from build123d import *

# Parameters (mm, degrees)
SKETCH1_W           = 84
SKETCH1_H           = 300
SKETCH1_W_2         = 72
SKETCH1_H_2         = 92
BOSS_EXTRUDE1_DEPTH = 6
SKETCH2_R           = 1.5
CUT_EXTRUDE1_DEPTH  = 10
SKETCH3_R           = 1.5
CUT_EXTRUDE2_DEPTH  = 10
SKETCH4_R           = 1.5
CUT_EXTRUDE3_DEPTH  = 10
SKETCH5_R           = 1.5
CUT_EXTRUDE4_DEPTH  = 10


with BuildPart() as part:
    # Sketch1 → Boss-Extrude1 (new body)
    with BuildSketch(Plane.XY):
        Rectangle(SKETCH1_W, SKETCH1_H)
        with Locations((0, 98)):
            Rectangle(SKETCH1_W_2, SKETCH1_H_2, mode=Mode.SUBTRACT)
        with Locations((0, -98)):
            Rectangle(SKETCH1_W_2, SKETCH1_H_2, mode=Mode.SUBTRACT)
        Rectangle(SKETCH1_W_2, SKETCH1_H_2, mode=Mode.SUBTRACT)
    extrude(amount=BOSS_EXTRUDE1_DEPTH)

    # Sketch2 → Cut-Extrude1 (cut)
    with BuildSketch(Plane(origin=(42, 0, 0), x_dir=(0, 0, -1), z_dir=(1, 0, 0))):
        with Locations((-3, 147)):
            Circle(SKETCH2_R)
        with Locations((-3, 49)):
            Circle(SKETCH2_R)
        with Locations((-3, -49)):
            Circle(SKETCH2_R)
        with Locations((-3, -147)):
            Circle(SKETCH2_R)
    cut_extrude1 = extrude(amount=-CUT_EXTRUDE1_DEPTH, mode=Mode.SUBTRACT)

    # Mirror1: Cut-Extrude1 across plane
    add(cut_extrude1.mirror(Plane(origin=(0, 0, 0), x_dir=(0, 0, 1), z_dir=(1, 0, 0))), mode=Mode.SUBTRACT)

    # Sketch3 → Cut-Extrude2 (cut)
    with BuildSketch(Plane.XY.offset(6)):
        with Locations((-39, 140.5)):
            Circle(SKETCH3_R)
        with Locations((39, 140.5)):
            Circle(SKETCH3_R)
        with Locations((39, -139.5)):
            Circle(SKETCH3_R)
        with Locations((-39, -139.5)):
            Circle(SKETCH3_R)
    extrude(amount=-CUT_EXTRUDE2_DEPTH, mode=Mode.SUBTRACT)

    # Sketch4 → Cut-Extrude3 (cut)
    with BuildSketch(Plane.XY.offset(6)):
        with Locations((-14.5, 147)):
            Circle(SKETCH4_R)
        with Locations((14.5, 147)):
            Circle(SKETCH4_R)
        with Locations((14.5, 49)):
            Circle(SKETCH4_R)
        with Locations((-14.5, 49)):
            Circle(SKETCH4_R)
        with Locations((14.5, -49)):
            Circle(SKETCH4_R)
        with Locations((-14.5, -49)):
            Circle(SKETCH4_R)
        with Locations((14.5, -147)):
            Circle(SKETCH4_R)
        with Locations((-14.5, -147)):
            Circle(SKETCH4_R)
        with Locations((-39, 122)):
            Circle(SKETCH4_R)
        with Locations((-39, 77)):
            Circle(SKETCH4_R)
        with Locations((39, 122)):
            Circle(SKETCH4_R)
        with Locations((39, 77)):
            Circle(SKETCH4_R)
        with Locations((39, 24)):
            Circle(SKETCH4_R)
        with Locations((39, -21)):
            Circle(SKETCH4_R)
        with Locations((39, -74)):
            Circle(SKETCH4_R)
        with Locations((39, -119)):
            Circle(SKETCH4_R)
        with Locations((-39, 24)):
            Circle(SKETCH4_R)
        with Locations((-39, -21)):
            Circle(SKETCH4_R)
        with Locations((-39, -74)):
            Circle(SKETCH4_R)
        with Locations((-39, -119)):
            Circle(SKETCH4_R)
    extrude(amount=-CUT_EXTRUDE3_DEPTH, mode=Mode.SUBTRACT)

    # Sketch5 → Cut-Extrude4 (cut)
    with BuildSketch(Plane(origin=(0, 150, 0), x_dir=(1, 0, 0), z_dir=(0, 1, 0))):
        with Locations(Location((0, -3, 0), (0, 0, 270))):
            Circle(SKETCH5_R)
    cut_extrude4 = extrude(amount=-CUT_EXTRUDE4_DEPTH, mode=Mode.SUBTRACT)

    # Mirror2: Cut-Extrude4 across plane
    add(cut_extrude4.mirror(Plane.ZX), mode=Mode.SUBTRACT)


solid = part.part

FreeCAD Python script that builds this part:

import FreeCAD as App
import Part
import Sketcher

V = App.Vector

doc = App.newDocument("Part")
body = doc.addObject("PartDesign::Body", "Body")

# Sketch on XY plane
sketch1 = doc.addObject("Sketcher::SketchObject", "Sketch")
body.addObject(sketch1)
sketch1.AttachmentSupport = (doc.XY_Plane, [""])
sketch1.MapMode = "FlatFace"
sketch1.addGeometry(Part.LineSegment(V(-42, 150, 0), V(-42, -150, 0)), False)
sketch1.addGeometry(Part.LineSegment(V(-42, -150, 0), V(42, -150, 0)), False)
sketch1.addGeometry(Part.LineSegment(V(42, -150, 0), V(42, 150, 0)), False)
sketch1.addGeometry(Part.LineSegment(V(42, 150, 0), V(-42, 150, 0)), False)
sketch1.addGeometry(Part.LineSegment(V(36, -144, 0), V(-36, -144, 0)), False)
sketch1.addGeometry(Part.LineSegment(V(-36, -144, 0), V(-36, -52, 0)), False)
sketch1.addGeometry(Part.LineSegment(V(-36, -52, 0), V(36, -52, 0)), False)
sketch1.addGeometry(Part.LineSegment(V(36, -52, 0), V(36, -144, 0)), False)
sketch1.addGeometry(Part.LineSegment(V(36, -46, 0), V(-36, -46, 0)), False)
sketch1.addGeometry(Part.LineSegment(V(-36, -46, 0), V(-36, 46, 0)), False)
sketch1.addGeometry(Part.LineSegment(V(-36, 46, 0), V(36, 46, 0)), False)
sketch1.addGeometry(Part.LineSegment(V(36, 46, 0), V(36, -46, 0)), False)
sketch1.addGeometry(Part.LineSegment(V(36, 52, 0), V(-36, 52, 0)), False)
sketch1.addGeometry(Part.LineSegment(V(-36, 52, 0), V(-36, 144, 0)), False)
sketch1.addGeometry(Part.LineSegment(V(-36, 144, 0), V(36, 144, 0)), False)
sketch1.addGeometry(Part.LineSegment(V(36, 144, 0), V(36, 52, 0)), False)
sketch1.addConstraint(Sketcher.Constraint("Coincident", 0, 2, 1, 1))
sketch1.addConstraint(Sketcher.Constraint("Coincident", 1, 2, 2, 1))
sketch1.addConstraint(Sketcher.Constraint("Coincident", 2, 2, 3, 1))
sketch1.addConstraint(Sketcher.Constraint("Coincident", 3, 2, 0, 1))
sketch1.addConstraint(Sketcher.Constraint("Coincident", 4, 2, 5, 1))
sketch1.addConstraint(Sketcher.Constraint("Coincident", 5, 2, 6, 1))
sketch1.addConstraint(Sketcher.Constraint("Coincident", 6, 2, 7, 1))
sketch1.addConstraint(Sketcher.Constraint("Coincident", 7, 2, 4, 1))
sketch1.addConstraint(Sketcher.Constraint("Coincident", 8, 2, 9, 1))
sketch1.addConstraint(Sketcher.Constraint("Coincident", 9, 2, 10, 1))
sketch1.addConstraint(Sketcher.Constraint("Coincident", 10, 2, 11, 1))
sketch1.addConstraint(Sketcher.Constraint("Coincident", 11, 2, 8, 1))
sketch1.addConstraint(Sketcher.Constraint("Coincident", 12, 2, 13, 1))
sketch1.addConstraint(Sketcher.Constraint("Coincident", 13, 2, 14, 1))
sketch1.addConstraint(Sketcher.Constraint("Coincident", 14, 2, 15, 1))
sketch1.addConstraint(Sketcher.Constraint("Coincident", 15, 2, 12, 1))
sketch1.addConstraint(Sketcher.Constraint("Vertical", 0))
sketch1.addConstraint(Sketcher.Constraint("Horizontal", 1))
sketch1.addConstraint(Sketcher.Constraint("Vertical", 2))
sketch1.addConstraint(Sketcher.Constraint("Horizontal", 3))
sketch1.addConstraint(Sketcher.Constraint("Horizontal", 4))
sketch1.addConstraint(Sketcher.Constraint("Vertical", 5))
sketch1.addConstraint(Sketcher.Constraint("Horizontal", 6))
sketch1.addConstraint(Sketcher.Constraint("Vertical", 7))
sketch1.addConstraint(Sketcher.Constraint("Horizontal", 8))
sketch1.addConstraint(Sketcher.Constraint("Vertical", 9))
sketch1.addConstraint(Sketcher.Constraint("Horizontal", 10))
sketch1.addConstraint(Sketcher.Constraint("Vertical", 11))
sketch1.addConstraint(Sketcher.Constraint("Horizontal", 12))
sketch1.addConstraint(Sketcher.Constraint("Vertical", 13))
sketch1.addConstraint(Sketcher.Constraint("Horizontal", 14))
sketch1.addConstraint(Sketcher.Constraint("Vertical", 15))
sketch1.addConstraint(Sketcher.Constraint("Symmetric", 0, 2, 2, 2, -1, 1))
sketch1.addConstraint(Sketcher.Constraint("Symmetric", 8, 2, 10, 2, -1, 1))
sketch1.addConstraint(Sketcher.Constraint("Symmetric", 6, 2, 12, 2, -1, 1))
sketch1.addConstraint(Sketcher.Constraint("Symmetric", 4, 2, 14, 2, -1, 1))
sketch1.addConstraint(Sketcher.Constraint("Vertical", 5, 2, 8, 2))
sketch1.addConstraint(Sketcher.Constraint("Vertical", 7, 2, 10, 2))
sketch1.addConstraint(Sketcher.Constraint("Equal", 7, 9))
sketch1.addConstraint(Sketcher.Constraint("DistanceX", 1, 1, 1, 2, 84.0))
sketch1.addConstraint(Sketcher.Constraint("DistanceX", 4, 2, 4, 1, 72.0))
sketch1.addConstraint(Sketcher.Constraint("DistanceY", 0, 2, 0, 1, 300.0))
sketch1.addConstraint(Sketcher.Constraint("DistanceY", 5, 1, 5, 2, 92.0))
sketch1.addConstraint(Sketcher.Constraint("DistanceY", 4, 2, -1, 1, 144.0))
pad1 = doc.addObject("PartDesign::Pad", "Pad")
body.addObject(pad1)
pad1.Profile = sketch1
pad1.Length = 6

# Sketch on YZ plane
sketch2 = doc.addObject("Sketcher::SketchObject", "Sketch001")
body.addObject(sketch2)
sketch2.AttachmentSupport = (doc.YZ_Plane, [""])
sketch2.MapMode = "FlatFace"
sketch2.AttachmentOffset = App.Placement(V(0, 0, 42), App.Rotation())
sketch2.addGeometry(Part.Circle(V(147, 3, 0), V(0, 0, 1), 1.5), False)
sketch2.addGeometry(Part.Circle(V(49, 3, 0), V(0, 0, 1), 1.5), False)
sketch2.addGeometry(Part.Circle(V(-49, 3, 0), V(0, 0, 1), 1.5), False)
sketch2.addGeometry(Part.Circle(V(-147, 3, 0), V(0, 0, 1), 1.5), False)
sketch2.addConstraint(Sketcher.Constraint("Equal", 0, 1))
sketch2.addConstraint(Sketcher.Constraint("Equal", 1, 2))
sketch2.addConstraint(Sketcher.Constraint("Equal", 2, 3))
sketch2.addConstraint(Sketcher.Constraint("Symmetric", 1, 3, 2, 3, -2))
sketch2.addConstraint(Sketcher.Constraint("Symmetric", 0, 3, 3, 3, -2))
sketch2.addConstraint(Sketcher.Constraint("Horizontal", 0, 3, 1, 3))
sketch2.addConstraint(Sketcher.Constraint("Diameter", 0, 3.0))
sketch2.addConstraint(Sketcher.Constraint("DistanceX", -1, 1, 0, 3, 147.0))
sketch2.addConstraint(Sketcher.Constraint("DistanceY", -1, 1, 0, 3, 3.0))
sketch2.addConstraint(Sketcher.Constraint("DistanceX", -1, 1, 1, 3, 49.0))
pocket1 = doc.addObject("PartDesign::Pocket", "Pocket")
body.addObject(pocket1)
pocket1.Profile = sketch2
pocket1.Length = 10
doc.recompute()

mirrored = doc.addObject("PartDesign::Mirrored", "Mirrored")
body.addObject(mirrored)
mirrored.Originals = [pocket1]
mirrored.MirrorPlane = (doc.YZ_Plane, [""])
body.Tip = mirrored

# Sketch on XY plane
sketch3 = doc.addObject("Sketcher::SketchObject", "Sketch002")
body.addObject(sketch3)
sketch3.AttachmentSupport = (doc.XY_Plane, [""])
sketch3.MapMode = "FlatFace"
sketch3.AttachmentOffset = App.Placement(V(0, 0, 6), App.Rotation())
sketch3.addGeometry(Part.Circle(V(-39, 140.5, 0), V(0, 0, 1), 1.5), False)
sketch3.addGeometry(Part.Circle(V(39, 140.5, 0), V(0, 0, 1), 1.5), False)
sketch3.addGeometry(Part.Circle(V(39, -139.5, 0), V(0, 0, 1), 1.5), False)
sketch3.addGeometry(Part.Circle(V(-39, -139.5, 0), V(0, 0, 1), 1.5), False)
sketch3.addConstraint(Sketcher.Constraint("Equal", 0, 1))
sketch3.addConstraint(Sketcher.Constraint("Equal", 1, 2))
sketch3.addConstraint(Sketcher.Constraint("Equal", 2, 3))
sketch3.addConstraint(Sketcher.Constraint("Symmetric", 0, 3, 1, 3, -2))
sketch3.addConstraint(Sketcher.Constraint("Symmetric", 2, 3, 3, 3, -2))
sketch3.addConstraint(Sketcher.Constraint("Vertical", 1, 3, 2, 3))
sketch3.addConstraint(Sketcher.Constraint("Diameter", 0, 3.0))
sketch3.addConstraint(Sketcher.Constraint("DistanceX", 0, 3, -1, 1, 39.0))
sketch3.addConstraint(Sketcher.Constraint("DistanceY", 2, 3, 1, 3, 280.0))
sketch3.addConstraint(Sketcher.Constraint("DistanceY", -1, 1, 0, 3, 140.5))
pocket2 = doc.addObject("PartDesign::Pocket", "Pocket001")
body.addObject(pocket2)
pocket2.Profile = sketch3
pocket2.Length = 10

# Sketch on XY plane
sketch4 = doc.addObject("Sketcher::SketchObject", "Sketch003")
body.addObject(sketch4)
sketch4.AttachmentSupport = (doc.XY_Plane, [""])
sketch4.MapMode = "FlatFace"
sketch4.AttachmentOffset = App.Placement(V(0, 0, 6), App.Rotation())
sketch4.addGeometry(Part.Circle(V(-14.5, 147, 0), V(0, 0, 1), 1.5), False)
sketch4.addGeometry(Part.Circle(V(14.5, 147, 0), V(0, 0, 1), 1.5), False)
sketch4.addGeometry(Part.Circle(V(14.5, 49, 0), V(0, 0, 1), 1.5), False)
sketch4.addGeometry(Part.Circle(V(-14.5, 49, 0), V(0, 0, 1), 1.5), False)
sketch4.addGeometry(Part.Circle(V(14.5, -49, 0), V(0, 0, 1), 1.5), False)
sketch4.addGeometry(Part.Circle(V(-14.5, -49, 0), V(0, 0, 1), 1.5), False)
sketch4.addGeometry(Part.Circle(V(14.5, -147, 0), V(0, 0, 1), 1.5), False)
sketch4.addGeometry(Part.Circle(V(-14.5, -147, 0), V(0, 0, 1), 1.5), False)
sketch4.addGeometry(Part.Circle(V(-39, 122, 0), V(0, 0, 1), 1.5), False)
sketch4.addGeometry(Part.Circle(V(-39, 77, 0), V(0, 0, 1), 1.5), False)
sketch4.addGeometry(Part.Circle(V(39, 122, 0), V(0, 0, 1), 1.5), False)
sketch4.addGeometry(Part.Circle(V(39, 77, 0), V(0, 0, 1), 1.5), False)
sketch4.addGeometry(Part.Circle(V(39, 24, 0), V(0, 0, 1), 1.5), False)
sketch4.addGeometry(Part.Circle(V(39, -21, 0), V(0, 0, 1), 1.5), False)
sketch4.addGeometry(Part.Circle(V(39, -74, 0), V(0, 0, 1), 1.5), False)
sketch4.addGeometry(Part.Circle(V(39, -119, 0), V(0, 0, 1), 1.5), False)
sketch4.addGeometry(Part.Circle(V(-39, 24, 0), V(0, 0, 1), 1.5), False)
sketch4.addGeometry(Part.Circle(V(-39, -21, 0), V(0, 0, 1), 1.5), False)
sketch4.addGeometry(Part.Circle(V(-39, -74, 0), V(0, 0, 1), 1.5), False)
sketch4.addGeometry(Part.Circle(V(-39, -119, 0), V(0, 0, 1), 1.5), False)
sketch4.addConstraint(Sketcher.Constraint("Equal", 0, 1))
sketch4.addConstraint(Sketcher.Constraint("Equal", 1, 2))
sketch4.addConstraint(Sketcher.Constraint("Equal", 2, 3))
sketch4.addConstraint(Sketcher.Constraint("Equal", 3, 4))
sketch4.addConstraint(Sketcher.Constraint("Equal", 4, 5))
sketch4.addConstraint(Sketcher.Constraint("Equal", 5, 6))
sketch4.addConstraint(Sketcher.Constraint("Equal", 6, 7))
sketch4.addConstraint(Sketcher.Constraint("Equal", 7, 8))
sketch4.addConstraint(Sketcher.Constraint("Equal", 8, 9))
sketch4.addConstraint(Sketcher.Constraint("Equal", 9, 10))
sketch4.addConstraint(Sketcher.Constraint("Equal", 10, 11))
sketch4.addConstraint(Sketcher.Constraint("Equal", 11, 12))
sketch4.addConstraint(Sketcher.Constraint("Equal", 12, 13))
sketch4.addConstraint(Sketcher.Constraint("Equal", 13, 14))
sketch4.addConstraint(Sketcher.Constraint("Equal", 14, 15))
sketch4.addConstraint(Sketcher.Constraint("Equal", 15, 16))
sketch4.addConstraint(Sketcher.Constraint("Equal", 16, 17))
sketch4.addConstraint(Sketcher.Constraint("Equal", 17, 18))
sketch4.addConstraint(Sketcher.Constraint("Equal", 18, 19))
sketch4.addConstraint(Sketcher.Constraint("Symmetric", 3, 3, 4, 3, -1, 1))
sketch4.addConstraint(Sketcher.Constraint("Symmetric", 2, 3, 5, 3, -1, 1))
sketch4.addConstraint(Sketcher.Constraint("Symmetric", 0, 3, 6, 3, -1, 1))
sketch4.addConstraint(Sketcher.Constraint("Symmetric", 1, 3, 7, 3, -1, 1))
sketch4.addConstraint(Sketcher.Constraint("Symmetric", 0, 3, 1, 3, -2))
sketch4.addConstraint(Sketcher.Constraint("Symmetric", 2, 3, 3, 3, -2))
sketch4.addConstraint(Sketcher.Constraint("Symmetric", 8, 3, 10, 3, -2))
sketch4.addConstraint(Sketcher.Constraint("Symmetric", 9, 3, 11, 3, -2))
sketch4.addConstraint(Sketcher.Constraint("Symmetric", 12, 3, 16, 3, -2))
sketch4.addConstraint(Sketcher.Constraint("Symmetric", 13, 3, 17, 3, -2))
sketch4.addConstraint(Sketcher.Constraint("Symmetric", 14, 3, 18, 3, -2))
sketch4.addConstraint(Sketcher.Constraint("Symmetric", 15, 3, 19, 3, -2))
sketch4.addConstraint(Sketcher.Constraint("Vertical", 1, 3, 2, 3))
sketch4.addConstraint(Sketcher.Constraint("Vertical", 8, 3, 9, 3))
sketch4.addConstraint(Sketcher.Constraint("Vertical", 11, 3, 12, 3))
sketch4.addConstraint(Sketcher.Constraint("Vertical", 12, 3, 13, 3))
sketch4.addConstraint(Sketcher.Constraint("Vertical", 13, 3, 14, 3))
sketch4.addConstraint(Sketcher.Constraint("Vertical", 14, 3, 15, 3))
sketch4.addConstraint(Sketcher.Constraint("Diameter", 0, 3.0))
sketch4.addConstraint(Sketcher.Constraint("DistanceY", -1, 1, 0, 3, 147.0))
sketch4.addConstraint(Sketcher.Constraint("DistanceY", -1, 1, 2, 3, 49.0))
sketch4.addConstraint(Sketcher.Constraint("DistanceX", 8, 3, -1, 1, 39.0))
sketch4.addConstraint(Sketcher.Constraint("DistanceY", -1, 1, 8, 3, 122.0))
sketch4.addConstraint(Sketcher.Constraint("DistanceY", -1, 1, 9, 3, 77.0))
sketch4.addConstraint(Sketcher.Constraint("DistanceY", -1, 1, 12, 3, 24.0))
sketch4.addConstraint(Sketcher.Constraint("DistanceY", 13, 3, -1, 1, 21.0))
sketch4.addConstraint(Sketcher.Constraint("DistanceY", 14, 3, -1, 1, 74.0))
sketch4.addConstraint(Sketcher.Constraint("DistanceY", 15, 3, -1, 1, 119.0))
sketch4.addConstraint(Sketcher.Constraint("DistanceX", 0, 3, 1, 3, 29.0))
pocket3 = doc.addObject("PartDesign::Pocket", "Pocket002")
body.addObject(pocket3)
pocket3.Profile = sketch4
pocket3.Length = 10

# Sketch on XZ plane
sketch5 = doc.addObject("Sketcher::SketchObject", "Sketch004")
body.addObject(sketch5)
sketch5.AttachmentSupport = (doc.XZ_Plane, [""])
sketch5.MapMode = "FlatFace"
sketch5.AttachmentOffset = App.Placement(V(0, 0, -150), App.Rotation())
sketch5.addGeometry(Part.Circle(V(0, 3, 0), V(0, 0, 1), 1.5), False)
sketch5.addConstraint(Sketcher.Constraint("PointOnObject", 0, 3, -2))
sketch5.addConstraint(Sketcher.Constraint("Diameter", 0, 3.0))
sketch5.addConstraint(Sketcher.Constraint("DistanceY", -1, 1, 0, 3, 3.0))
pocket4 = doc.addObject("PartDesign::Pocket", "Pocket003")
body.addObject(pocket4)
pocket4.Profile = sketch5
pocket4.Length = 10
pocket4.Reversed = True
doc.recompute()

mirrored2 = doc.addObject("PartDesign::Mirrored", "Mirrored001")
body.addObject(mirrored2)
mirrored2.Originals = [pocket4]
mirrored2.MirrorPlane = (doc.XZ_Plane, [""])
body.Tip = mirrored2

doc.recompute()
